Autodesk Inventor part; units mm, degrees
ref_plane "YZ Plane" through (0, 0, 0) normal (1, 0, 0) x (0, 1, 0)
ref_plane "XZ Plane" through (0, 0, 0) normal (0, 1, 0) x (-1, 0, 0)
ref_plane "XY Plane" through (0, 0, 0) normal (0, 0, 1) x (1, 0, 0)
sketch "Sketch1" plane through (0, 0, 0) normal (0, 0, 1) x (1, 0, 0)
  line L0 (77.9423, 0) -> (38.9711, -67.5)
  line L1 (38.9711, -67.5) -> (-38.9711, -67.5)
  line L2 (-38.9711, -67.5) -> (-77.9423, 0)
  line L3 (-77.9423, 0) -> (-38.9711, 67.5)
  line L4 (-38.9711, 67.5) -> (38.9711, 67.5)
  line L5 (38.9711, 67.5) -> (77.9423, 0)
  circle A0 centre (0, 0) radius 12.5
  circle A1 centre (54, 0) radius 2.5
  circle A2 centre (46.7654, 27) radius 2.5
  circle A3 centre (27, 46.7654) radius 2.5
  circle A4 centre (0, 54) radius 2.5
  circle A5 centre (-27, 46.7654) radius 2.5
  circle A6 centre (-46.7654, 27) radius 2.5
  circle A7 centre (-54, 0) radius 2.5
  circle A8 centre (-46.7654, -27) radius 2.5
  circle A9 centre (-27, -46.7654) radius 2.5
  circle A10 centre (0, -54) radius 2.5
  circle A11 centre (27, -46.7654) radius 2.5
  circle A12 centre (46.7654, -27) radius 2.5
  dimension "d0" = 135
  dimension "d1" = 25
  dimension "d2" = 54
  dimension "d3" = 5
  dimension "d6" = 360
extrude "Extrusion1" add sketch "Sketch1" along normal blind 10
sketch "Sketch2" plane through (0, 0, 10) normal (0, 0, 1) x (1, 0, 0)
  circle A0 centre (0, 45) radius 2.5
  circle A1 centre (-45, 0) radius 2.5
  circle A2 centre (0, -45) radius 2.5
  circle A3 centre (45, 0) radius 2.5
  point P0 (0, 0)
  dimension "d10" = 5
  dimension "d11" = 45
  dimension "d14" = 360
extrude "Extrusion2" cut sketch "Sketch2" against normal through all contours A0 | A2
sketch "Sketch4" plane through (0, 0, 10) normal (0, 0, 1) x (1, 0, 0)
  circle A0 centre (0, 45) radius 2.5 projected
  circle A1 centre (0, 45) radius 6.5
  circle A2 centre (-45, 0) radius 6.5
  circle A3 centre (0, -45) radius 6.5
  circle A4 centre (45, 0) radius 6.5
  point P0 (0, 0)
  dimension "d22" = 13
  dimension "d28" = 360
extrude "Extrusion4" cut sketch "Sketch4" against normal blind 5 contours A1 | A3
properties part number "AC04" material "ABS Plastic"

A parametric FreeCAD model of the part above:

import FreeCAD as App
import Part
import Sketcher
from FreeCAD import Vector
Q = App.Units.Quantity

doc = App.newDocument("Part")
body = doc.addObject("PartDesign::Body", "Body")

sketch1 = body.newObject("Sketcher::SketchObject", "Sketch")
sketch1.AttachmentSupport = (doc.getObject("XY_Plane"), [""])
sketch1.MapMode = "FlatFace"
sketch1.addGeometry([
    Part.LineSegment(Vector(39, -67.5, 0), Vector(77.9, 0, 0)),
    Part.LineSegment(Vector(77.9, 0, 0), Vector(39, 67.5, 0)),
    Part.LineSegment(Vector(39, 67.5, 0), Vector(-39, 67.5, 0)),
    Part.LineSegment(Vector(-39, 67.5, 0), Vector(-77.9, 0, 0)),
    Part.LineSegment(Vector(-77.9, 0, 0), Vector(-39, -67.5, 0)),
    Part.LineSegment(Vector(-39, -67.5, 0), Vector(39, -67.5, 0)),
    Part.Circle(Vector(-27, -46.8, 0), Vector(0, 0, 1), 2.5),
    Part.Circle(Vector(-46.8, -27, 0), Vector(0, 0, 1), 2.5),
    Part.Circle(Vector(0, -54, 0), Vector(0, 0, 1), 2.5),
    Part.Circle(Vector(27, -46.8, 0), Vector(0, 0, 1), 2.5),
    Part.Circle(Vector(46.8, -27, 0), Vector(0, 0, 1), 2.5),
    Part.Circle(Vector(-54, 0, 0), Vector(0, 0, 1), 2.5),
    Part.Circle(Vector(-46.8, 27, 0), Vector(0, 0, 1), 2.5),
    Part.Circle(Vector(-27, 46.8, 0), Vector(0, 0, 1), 2.5),
    Part.Circle(Vector(0, 0, 0), Vector(0, 0, 1), 12.5),
    Part.Circle(Vector(54, 0, 0), Vector(0, 0, 1), 2.5),
    Part.Circle(Vector(46.8, 27, 0), Vector(0, 0, 1), 2.5),
    Part.Circle(Vector(27, 46.8, 0), Vector(0, 0, 1), 2.5),
    Part.Circle(Vector(0, 54, 0), Vector(0, 0, 1), 2.5),
], False)
sketch1.addConstraint([
    Sketcher.Constraint("Coincident", 0, 2, 1, 1),
    Sketcher.Constraint("Coincident", 1, 2, 2, 1),
    Sketcher.Constraint("Coincident", 2, 2, 3, 1),
    Sketcher.Constraint("Coincident", 3, 2, 4, 1),
    Sketcher.Constraint("Coincident", 4, 2, 5, 1),
    Sketcher.Constraint("Coincident", 5, 2, 0, 1),
    Sketcher.Constraint("Horizontal", 2),
    Sketcher.Constraint("Horizontal", 5),
    Sketcher.Constraint("Coincident", 14, 3, -1, 1),
    Sketcher.Constraint("Equal", 6, 7),
    Sketcher.Constraint("Equal", 7, 8),
    Sketcher.Constraint("Equal", 8, 9),
    Sketcher.Constraint("Equal", 9, 10),
    Sketcher.Constraint("Equal", 10, 11),
    Sketcher.Constraint("Equal", 11, 12),
    Sketcher.Constraint("Equal", 12, 13),
    Sketcher.Constraint("Equal", 13, 15),
    Sketcher.Constraint("Equal", 15, 16),
    Sketcher.Constraint("Equal", 16, 17),
    Sketcher.Constraint("Equal", 17, 18),
    Sketcher.Constraint("Symmetric", 10, 3, 12, 3, -1, 1),
    Sketcher.Constraint("Symmetric", 9, 3, 13, 3, -1, 1),
    Sketcher.Constraint("Symmetric", 11, 3, 15, 3, -1, 1),
    Sketcher.Constraint("Symmetric", 7, 3, 16, 3, -1, 1),
    Sketcher.Constraint("Symmetric", 6, 3, 17, 3, -1, 1),
    Sketcher.Constraint("Symmetric", 8, 3, 18, 3, -1, 1),
    Sketcher.Constraint("Symmetric", 0, 2, 3, 2, -1, 1),
    Sketcher.Constraint("Symmetric", 1, 2, 4, 2, -1, 1),
    Sketcher.Constraint("Symmetric", 6, 3, 9, 3, -2),
    Sketcher.Constraint("Symmetric", 7, 3, 10, 3, -2),
    Sketcher.Constraint("PointOnObject", 8, 3, -2),
    Sketcher.Constraint("PointOnObject", 11, 3, -1),
    Sketcher.Constraint("PointOnObject", 0, 2, -1),
    Sketcher.Constraint("Parallel", 0, 3),
    Sketcher.Constraint("Vertical", 2, 2, 4, 2),
    Sketcher.Constraint("Diameter", 6, Q("5 mm")),
    Sketcher.Constraint("Diameter", 14, Q("25 mm")),
    Sketcher.Constraint("DistanceY", 8, 3, -1, 1, Q("54 mm")),
    Sketcher.Constraint("DistanceX", 11, 3, -1, 1, Q("54 mm")),
    Sketcher.Constraint("DistanceX", 6, 3, 9, 3, Q("54 mm")),
    Sketcher.Constraint("DistanceY", 7, 3, 12, 3, Q("54 mm")),
    Sketcher.Constraint("Angle", 0, Q("60 deg")),
    Sketcher.Constraint("DistanceY", -1, 1, 1, 2, Q("67.5 mm")),
    Sketcher.Constraint("DistanceX", 2, 2, 2, 1, Q("77.9422 mm")),
    Sketcher.Constraint("DistanceX", 10, 3, 0, 2, Q("31.177 mm")),
    Sketcher.Constraint("DistanceY", 6, 3, -1, 1, Q("46.7654 mm")),
])
pad1 = body.newObject("PartDesign::Pad", "Pad")
pad1.Profile = sketch1
pad1.Length = 10

sketch2 = body.newObject("Sketcher::SketchObject", "Sketch001")
sketch2.AttachmentSupport = (doc.getObject("XY_Plane"), [""])
sketch2.MapMode = "FlatFace"
sketch2.AttachmentOffset = App.Placement(Vector(0, 0, 10), App.Rotation())
sketch2.addGeometry([
    Part.Circle(Vector(0, 45, 0), Vector(0, 0, 1), 2.5),
    Part.Circle(Vector(0, -45, 0), Vector(0, 0, 1), 2.5),
], False)
sketch2.addConstraint([
    Sketcher.Constraint("Equal", 0, 1),
    Sketcher.Constraint("Symmetric", 0, 3, 1, 3, -1, 1),
    Sketcher.Constraint("PointOnObject", 0, 3, -2),
    Sketcher.Constraint("Diameter", 0, Q("5 mm")),
    Sketcher.Constraint("DistanceY", -1, 1, 0, 3, Q("45 mm")),
])
pocket1 = body.newObject("PartDesign::Pocket", "Pocket")
pocket1.Profile = sketch2
pocket1.Type = "ThroughAll"

sketch3 = body.newObject("Sketcher::SketchObject", "Sketch002")
sketch3.AttachmentSupport = (doc.getObject("XY_Plane"), [""])
sketch3.MapMode = "FlatFace"
sketch3.AttachmentOffset = App.Placement(Vector(0, 0, 10), App.Rotation())
sketch3.addGeometry([
    Part.Circle(Vector(0, 45, 0), Vector(0, 0, 1), 6.5),
    Part.Circle(Vector(0, 45, 0), Vector(0, 0, 1), 2.5),
    Part.Circle(Vector(0, -45, 0), Vector(0, 0, 1), 6.5),
], False)
sketch3.addConstraint([
    Sketcher.Constraint("Coincident", 1, 3, 0, 3),
    Sketcher.Constraint("Equal", 0, 2),
    Sketcher.Constraint("Symmetric", 0, 3, 2, 3, -1, 1),
    Sketcher.Constraint("PointOnObject", 0, 3, -2),
    Sketcher.Constraint("Diameter", 0, Q("13 mm")),
    Sketcher.Constraint("Diameter", 1, Q("5 mm")),
    Sketcher.Constraint("DistanceY", -1, 1, 0, 3, Q("45 mm")),
])
pocket2 = body.newObject("PartDesign::Pocket", "Pocket001")
pocket2.Profile = sketch3
pocket2.Length = 5

doc.recompute()
